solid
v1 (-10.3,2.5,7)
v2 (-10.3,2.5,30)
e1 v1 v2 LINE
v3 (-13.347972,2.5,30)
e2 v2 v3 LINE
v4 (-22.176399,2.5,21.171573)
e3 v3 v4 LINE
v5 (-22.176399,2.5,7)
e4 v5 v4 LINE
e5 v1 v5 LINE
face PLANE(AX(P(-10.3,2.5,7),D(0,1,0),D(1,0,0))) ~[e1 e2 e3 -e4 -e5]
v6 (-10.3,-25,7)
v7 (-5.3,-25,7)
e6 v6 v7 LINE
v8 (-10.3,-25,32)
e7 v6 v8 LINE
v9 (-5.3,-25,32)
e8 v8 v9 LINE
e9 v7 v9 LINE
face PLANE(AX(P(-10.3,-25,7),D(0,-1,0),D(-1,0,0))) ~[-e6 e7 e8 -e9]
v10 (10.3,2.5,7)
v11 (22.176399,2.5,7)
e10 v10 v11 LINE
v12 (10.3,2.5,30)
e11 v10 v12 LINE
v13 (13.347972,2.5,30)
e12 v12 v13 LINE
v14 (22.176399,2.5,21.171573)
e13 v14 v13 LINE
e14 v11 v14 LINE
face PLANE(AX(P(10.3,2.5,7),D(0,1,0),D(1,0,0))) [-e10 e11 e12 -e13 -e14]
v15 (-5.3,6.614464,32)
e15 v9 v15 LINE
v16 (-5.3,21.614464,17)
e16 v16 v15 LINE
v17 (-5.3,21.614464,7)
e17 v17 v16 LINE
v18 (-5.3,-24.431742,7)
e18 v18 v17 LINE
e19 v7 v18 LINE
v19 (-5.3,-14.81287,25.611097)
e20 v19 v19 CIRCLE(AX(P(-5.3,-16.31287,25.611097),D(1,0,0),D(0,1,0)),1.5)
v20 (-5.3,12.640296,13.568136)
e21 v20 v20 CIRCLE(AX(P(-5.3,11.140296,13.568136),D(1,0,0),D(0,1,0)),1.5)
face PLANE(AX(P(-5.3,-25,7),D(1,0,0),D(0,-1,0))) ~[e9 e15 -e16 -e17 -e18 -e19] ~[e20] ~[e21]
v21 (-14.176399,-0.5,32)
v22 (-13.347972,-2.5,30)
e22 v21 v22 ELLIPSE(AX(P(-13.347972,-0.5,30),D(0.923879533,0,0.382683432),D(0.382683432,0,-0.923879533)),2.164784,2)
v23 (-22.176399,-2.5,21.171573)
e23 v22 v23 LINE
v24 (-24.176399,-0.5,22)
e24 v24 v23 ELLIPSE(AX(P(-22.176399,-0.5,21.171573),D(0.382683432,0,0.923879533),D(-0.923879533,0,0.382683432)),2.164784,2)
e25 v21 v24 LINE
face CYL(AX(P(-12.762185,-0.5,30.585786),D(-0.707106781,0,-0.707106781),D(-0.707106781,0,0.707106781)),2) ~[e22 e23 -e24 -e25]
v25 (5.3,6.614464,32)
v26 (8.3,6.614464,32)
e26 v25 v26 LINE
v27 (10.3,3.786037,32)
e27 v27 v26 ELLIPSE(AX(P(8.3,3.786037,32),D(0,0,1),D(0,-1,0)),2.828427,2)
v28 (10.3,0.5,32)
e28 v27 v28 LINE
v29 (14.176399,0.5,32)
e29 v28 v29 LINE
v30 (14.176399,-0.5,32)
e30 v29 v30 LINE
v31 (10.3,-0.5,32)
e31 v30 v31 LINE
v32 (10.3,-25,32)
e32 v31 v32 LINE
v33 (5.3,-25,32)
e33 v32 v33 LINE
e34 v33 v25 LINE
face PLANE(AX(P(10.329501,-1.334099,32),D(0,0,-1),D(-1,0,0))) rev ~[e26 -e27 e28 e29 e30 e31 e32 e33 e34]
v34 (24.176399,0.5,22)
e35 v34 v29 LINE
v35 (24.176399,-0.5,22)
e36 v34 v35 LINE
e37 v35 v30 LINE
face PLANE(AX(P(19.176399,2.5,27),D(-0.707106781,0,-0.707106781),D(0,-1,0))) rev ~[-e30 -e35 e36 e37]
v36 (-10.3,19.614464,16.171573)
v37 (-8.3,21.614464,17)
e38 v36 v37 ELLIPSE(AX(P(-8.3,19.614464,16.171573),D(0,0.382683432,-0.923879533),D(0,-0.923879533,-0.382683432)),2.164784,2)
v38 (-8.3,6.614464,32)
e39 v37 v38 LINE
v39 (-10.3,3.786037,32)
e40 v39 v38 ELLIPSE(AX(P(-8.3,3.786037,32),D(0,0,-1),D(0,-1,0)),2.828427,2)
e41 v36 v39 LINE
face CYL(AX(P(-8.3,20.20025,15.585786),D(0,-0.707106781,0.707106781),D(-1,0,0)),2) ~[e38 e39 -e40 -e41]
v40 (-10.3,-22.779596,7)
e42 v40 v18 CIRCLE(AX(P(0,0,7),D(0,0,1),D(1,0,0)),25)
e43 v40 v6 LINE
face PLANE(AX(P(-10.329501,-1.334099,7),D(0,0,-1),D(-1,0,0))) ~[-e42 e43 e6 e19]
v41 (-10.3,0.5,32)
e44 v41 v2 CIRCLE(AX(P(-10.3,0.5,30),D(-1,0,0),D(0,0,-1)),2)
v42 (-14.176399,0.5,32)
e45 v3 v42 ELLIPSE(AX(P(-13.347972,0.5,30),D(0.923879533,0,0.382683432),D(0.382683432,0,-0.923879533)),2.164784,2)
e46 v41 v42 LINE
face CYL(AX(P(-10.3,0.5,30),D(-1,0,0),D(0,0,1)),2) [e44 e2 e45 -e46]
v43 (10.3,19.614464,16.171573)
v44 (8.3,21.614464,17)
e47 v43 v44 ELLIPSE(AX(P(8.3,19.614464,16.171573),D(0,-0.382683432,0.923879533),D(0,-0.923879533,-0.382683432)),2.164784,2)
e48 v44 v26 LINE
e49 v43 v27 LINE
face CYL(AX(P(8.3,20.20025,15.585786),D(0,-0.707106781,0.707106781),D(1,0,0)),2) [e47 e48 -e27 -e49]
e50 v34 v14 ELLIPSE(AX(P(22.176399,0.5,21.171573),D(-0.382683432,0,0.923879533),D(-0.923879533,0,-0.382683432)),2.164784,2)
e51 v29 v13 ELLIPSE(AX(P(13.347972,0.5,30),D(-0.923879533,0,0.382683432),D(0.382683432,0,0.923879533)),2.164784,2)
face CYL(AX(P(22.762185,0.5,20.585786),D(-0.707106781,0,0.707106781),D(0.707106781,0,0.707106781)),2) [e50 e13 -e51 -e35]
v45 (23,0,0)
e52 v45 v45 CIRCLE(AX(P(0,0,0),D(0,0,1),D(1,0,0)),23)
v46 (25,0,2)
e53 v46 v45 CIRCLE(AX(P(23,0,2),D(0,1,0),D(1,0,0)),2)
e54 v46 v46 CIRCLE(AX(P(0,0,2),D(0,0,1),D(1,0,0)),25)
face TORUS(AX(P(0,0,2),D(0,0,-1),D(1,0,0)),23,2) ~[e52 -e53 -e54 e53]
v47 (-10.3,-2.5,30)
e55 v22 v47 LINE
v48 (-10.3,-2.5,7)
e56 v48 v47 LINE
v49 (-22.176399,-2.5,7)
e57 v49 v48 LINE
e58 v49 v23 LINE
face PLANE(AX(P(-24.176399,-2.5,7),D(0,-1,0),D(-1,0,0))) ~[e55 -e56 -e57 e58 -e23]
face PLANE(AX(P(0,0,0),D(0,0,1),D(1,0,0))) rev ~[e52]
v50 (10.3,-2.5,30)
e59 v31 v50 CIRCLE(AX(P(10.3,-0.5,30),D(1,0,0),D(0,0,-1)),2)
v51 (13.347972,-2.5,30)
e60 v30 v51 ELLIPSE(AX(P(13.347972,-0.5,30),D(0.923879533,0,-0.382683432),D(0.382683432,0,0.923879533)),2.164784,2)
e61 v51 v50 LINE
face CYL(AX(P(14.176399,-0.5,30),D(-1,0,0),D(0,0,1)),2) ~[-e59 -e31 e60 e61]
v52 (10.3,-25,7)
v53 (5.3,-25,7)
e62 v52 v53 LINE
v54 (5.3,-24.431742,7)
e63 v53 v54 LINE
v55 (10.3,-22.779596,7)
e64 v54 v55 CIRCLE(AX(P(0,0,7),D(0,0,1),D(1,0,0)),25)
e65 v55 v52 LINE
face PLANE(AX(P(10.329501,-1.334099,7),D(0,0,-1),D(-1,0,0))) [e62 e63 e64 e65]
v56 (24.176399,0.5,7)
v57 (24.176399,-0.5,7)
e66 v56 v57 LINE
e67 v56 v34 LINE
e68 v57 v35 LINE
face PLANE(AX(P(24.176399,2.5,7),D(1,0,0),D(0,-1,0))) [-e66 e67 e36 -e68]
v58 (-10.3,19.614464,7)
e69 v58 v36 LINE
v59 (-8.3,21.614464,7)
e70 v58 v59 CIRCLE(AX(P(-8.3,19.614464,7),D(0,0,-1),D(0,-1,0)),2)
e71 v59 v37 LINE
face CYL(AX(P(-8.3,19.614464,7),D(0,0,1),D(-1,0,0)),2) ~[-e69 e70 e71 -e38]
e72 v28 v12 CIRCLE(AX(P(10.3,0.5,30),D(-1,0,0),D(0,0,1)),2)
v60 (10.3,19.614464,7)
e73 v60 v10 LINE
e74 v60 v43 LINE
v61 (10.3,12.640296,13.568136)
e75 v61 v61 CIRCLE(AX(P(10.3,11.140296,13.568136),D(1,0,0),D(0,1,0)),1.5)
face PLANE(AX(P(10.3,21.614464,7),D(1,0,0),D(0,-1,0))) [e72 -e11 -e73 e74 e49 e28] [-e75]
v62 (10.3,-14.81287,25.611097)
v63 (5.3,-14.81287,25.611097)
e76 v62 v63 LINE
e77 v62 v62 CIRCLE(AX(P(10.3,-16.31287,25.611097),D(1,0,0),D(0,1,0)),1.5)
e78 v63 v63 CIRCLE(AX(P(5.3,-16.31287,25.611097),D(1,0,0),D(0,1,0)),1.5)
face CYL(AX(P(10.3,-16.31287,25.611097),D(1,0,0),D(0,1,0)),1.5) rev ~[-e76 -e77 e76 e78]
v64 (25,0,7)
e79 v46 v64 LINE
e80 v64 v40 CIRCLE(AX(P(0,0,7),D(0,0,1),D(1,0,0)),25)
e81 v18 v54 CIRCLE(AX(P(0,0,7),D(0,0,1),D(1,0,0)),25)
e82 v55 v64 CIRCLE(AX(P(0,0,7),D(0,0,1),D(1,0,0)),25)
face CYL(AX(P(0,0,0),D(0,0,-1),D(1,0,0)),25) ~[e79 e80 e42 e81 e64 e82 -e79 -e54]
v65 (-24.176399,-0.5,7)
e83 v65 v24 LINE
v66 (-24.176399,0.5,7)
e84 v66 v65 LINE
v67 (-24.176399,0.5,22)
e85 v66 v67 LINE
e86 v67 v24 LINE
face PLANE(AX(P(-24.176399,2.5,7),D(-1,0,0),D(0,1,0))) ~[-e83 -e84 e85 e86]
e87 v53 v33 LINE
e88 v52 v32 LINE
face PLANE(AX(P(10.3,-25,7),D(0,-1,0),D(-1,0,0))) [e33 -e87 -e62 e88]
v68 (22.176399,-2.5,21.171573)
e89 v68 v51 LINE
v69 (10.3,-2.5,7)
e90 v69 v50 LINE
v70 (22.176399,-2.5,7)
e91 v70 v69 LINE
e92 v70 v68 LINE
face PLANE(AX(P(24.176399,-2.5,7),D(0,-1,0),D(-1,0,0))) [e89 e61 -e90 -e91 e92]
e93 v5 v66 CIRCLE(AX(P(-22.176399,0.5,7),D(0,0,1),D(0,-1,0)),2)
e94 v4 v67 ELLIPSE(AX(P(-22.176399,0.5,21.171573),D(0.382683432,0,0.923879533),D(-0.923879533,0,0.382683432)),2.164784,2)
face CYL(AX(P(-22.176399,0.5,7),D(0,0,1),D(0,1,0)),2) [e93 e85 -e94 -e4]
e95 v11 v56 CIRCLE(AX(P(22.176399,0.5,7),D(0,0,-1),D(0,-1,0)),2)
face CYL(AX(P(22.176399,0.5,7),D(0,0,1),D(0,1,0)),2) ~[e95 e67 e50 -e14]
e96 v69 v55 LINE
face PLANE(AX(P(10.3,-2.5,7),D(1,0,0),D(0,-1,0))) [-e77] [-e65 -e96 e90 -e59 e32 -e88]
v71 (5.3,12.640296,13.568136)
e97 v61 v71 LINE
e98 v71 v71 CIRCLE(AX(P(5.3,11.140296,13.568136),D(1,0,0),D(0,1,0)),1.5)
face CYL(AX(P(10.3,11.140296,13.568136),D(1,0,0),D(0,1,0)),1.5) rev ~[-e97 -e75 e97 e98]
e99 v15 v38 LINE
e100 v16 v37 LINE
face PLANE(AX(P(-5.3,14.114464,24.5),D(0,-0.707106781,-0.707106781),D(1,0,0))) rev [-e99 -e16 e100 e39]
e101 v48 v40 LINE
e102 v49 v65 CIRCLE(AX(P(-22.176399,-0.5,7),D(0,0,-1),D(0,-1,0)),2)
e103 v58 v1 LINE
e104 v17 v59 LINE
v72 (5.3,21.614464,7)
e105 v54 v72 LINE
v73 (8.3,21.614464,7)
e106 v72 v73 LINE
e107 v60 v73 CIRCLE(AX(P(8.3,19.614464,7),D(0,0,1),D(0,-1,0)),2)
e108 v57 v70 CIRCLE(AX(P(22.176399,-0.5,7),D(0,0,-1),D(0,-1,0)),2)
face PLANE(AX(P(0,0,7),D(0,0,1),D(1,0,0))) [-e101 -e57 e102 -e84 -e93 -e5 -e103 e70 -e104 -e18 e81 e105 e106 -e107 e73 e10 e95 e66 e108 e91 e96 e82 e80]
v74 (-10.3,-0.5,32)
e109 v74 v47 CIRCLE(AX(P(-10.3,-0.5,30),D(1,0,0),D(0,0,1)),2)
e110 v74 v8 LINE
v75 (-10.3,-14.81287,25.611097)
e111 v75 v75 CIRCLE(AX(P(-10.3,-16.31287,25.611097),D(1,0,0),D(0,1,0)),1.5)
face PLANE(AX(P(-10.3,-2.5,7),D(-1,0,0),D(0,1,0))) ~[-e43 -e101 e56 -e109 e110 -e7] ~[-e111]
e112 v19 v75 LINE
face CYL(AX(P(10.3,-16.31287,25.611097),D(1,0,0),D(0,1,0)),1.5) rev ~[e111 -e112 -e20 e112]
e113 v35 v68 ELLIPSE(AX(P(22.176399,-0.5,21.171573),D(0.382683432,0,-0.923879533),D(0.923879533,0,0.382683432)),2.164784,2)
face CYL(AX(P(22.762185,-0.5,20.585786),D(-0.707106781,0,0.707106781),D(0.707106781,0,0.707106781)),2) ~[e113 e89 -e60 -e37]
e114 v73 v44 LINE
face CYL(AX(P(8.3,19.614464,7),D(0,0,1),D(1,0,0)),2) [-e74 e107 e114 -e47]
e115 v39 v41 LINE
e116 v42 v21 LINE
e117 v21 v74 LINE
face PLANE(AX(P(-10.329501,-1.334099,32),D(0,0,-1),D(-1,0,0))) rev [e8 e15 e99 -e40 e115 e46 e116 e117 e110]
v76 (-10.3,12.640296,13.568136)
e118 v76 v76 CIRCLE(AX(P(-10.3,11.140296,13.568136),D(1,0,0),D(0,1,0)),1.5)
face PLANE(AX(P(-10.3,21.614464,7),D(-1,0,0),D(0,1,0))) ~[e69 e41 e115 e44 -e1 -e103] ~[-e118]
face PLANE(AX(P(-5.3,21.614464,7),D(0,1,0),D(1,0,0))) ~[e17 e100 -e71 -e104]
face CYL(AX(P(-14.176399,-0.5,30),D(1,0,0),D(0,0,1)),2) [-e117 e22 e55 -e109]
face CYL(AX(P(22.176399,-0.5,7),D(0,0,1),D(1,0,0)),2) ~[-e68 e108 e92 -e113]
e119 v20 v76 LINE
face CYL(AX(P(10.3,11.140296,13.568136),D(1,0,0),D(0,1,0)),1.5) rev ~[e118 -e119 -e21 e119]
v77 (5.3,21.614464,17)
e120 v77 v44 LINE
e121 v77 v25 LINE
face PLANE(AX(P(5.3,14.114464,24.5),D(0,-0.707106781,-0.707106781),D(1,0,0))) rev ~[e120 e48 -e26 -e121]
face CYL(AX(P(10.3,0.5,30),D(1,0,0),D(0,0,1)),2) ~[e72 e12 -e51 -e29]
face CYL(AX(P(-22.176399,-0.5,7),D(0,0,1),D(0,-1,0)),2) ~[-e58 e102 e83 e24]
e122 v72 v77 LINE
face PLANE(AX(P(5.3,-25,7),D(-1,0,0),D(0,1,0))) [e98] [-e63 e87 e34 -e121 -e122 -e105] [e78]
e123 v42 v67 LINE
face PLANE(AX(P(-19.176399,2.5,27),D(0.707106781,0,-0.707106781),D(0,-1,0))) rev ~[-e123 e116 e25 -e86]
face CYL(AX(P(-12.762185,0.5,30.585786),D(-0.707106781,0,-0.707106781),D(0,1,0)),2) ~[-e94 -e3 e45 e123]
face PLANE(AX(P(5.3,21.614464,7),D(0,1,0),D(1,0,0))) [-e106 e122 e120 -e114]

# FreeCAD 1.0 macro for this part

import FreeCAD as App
import Part
import Sketcher
from FreeCAD import Vector


def edges_at(feature, points):
    """Names of the edges that pass closest to the given points."""
    edges = feature.Shape.Edges
    near = lambda p: min(range(len(edges)), key=lambda i: edges[i].distToShape(Part.Vertex(*p))[0])
    return sorted({f"Edge{near(p) + 1}" for p in points})


def add_polygon(sketch, points):
    """Adds a closed chain of lines whose ends are joined by coincident constraints."""
    first, n = sketch.GeometryCount, len(points)
    for a, b in zip(points, points[1:] + points[:1]):
        sketch.addGeometry(Part.LineSegment(App.Vector(*a, 0), App.Vector(*b, 0)), False)
    for i in range(n):
        sketch.addConstraint(Sketcher.Constraint("Coincident", first + i, 2, first + (i + 1) % n, 1))

doc = App.newDocument("Part")
body = doc.addObject("PartDesign::Body", "Body")

# Sketch on XY plane
sketch1 = body.newObject("Sketcher::SketchObject", "Sketch")
sketch1.AttachmentSupport = (doc.getObject("XY_Plane"), [""])
sketch1.MapMode = "FlatFace"
sketch1.addGeometry(Part.Circle(Vector(0, 0, 0), Vector(0, 0, 1), 25), False)
sketch1.addConstraint([
    Sketcher.Constraint("Coincident", 0, 3, -1, 1),
    Sketcher.Constraint("Diameter", 0, 50.0),
])
pad1 = body.newObject("PartDesign::Pad", "Pad")
pad1.Profile = sketch1
pad1.Length = 7

# Sketch on XY plane
sketch2 = body.newObject("Sketcher::SketchObject", "Sketch001")
sketch2.AttachmentSupport = (doc.getObject("XY_Plane"), [""])
sketch2.MapMode = "FlatFace"
sketch2.AttachmentOffset = App.Placement(Vector(0, 0, 7), App.Rotation())
add_polygon(sketch2, [(10, 22), (5, 22), (5, -25), (10, -25), (10, -2), (24, -2), (24, 2), (10, 2)])  # lines 0-7
sketch2.addConstraint([
    Sketcher.Constraint("Horizontal", 0),
    Sketcher.Constraint("Vertical", 1),
    Sketcher.Constraint("Horizontal", 2),
    Sketcher.Constraint("Vertical", 3),
    Sketcher.Constraint("Horizontal", 4),
    Sketcher.Constraint("Vertical", 5),
    Sketcher.Constraint("Horizontal", 6),
    Sketcher.Constraint("Vertical", 7),
    Sketcher.Constraint("Symmetric", 3, 2, 6, 2, -1),
    Sketcher.Constraint("Equal", 2, 5),
    Sketcher.Constraint("DistanceX", 0, 2, 0, 1, 5.0),
    Sketcher.Constraint("DistanceY", 3, 1, 3, 2, 22.5),
    Sketcher.Constraint("DistanceX", -1, 1, 0, 2, 5.3),
    Sketcher.Constraint("DistanceX", 4, 1, 4, 2, 13.876399),
    Sketcher.Constraint("DistanceY", 1, 2, 1, 1, 46.614464),
])
pad2 = body.newObject("PartDesign::Pad", "Pad001")
pad2.Profile = sketch2
pad2.Length = 25
doc.recompute()

mirrored = body.newObject("PartDesign::Mirrored", "Mirrored")
mirrored.Originals = [pad2]
mirrored.MirrorPlane = (doc.getObject("YZ_Plane"), [""])
body.Tip = mirrored
doc.recompute()

chamfer = body.newObject("PartDesign::Chamfer", "Chamfer")
chamfer.Base = (mirrored, edges_at(mirrored, [(7.8, 21.614, 32), (-7.8, 21.614, 32)]))
chamfer.Size = 15
doc.recompute()

chamfer2 = body.newObject("PartDesign::Chamfer", "Chamfer001")
chamfer2.Base = (chamfer, edges_at(chamfer, [(24.176, 0, 32), (-24.176, 0, 32)]))
chamfer2.Size = 10
doc.recompute()

fillet = body.newObject("PartDesign::Fillet", "Fillet")
fillet.Base = (chamfer2, edges_at(chamfer2, [
    (10.3, 14.114, 24.5),
    (10.3, 21.614, 12),
    (-10.3, 14.114, 24.5),
    (-10.3, 21.614, 12),
]))
fillet.Radius = 2
doc.recompute()

fillet2 = body.newObject("PartDesign::Fillet", "Fillet001")
fillet2.Base = (fillet, edges_at(fillet, [
    (-19.176, 2.5, 27),
    (-24.176, 2.5, 14.5),
    (-19.176, -2.5, 27),
    (-24.176, -2.5, 14.5),
    (-12.238, 2.5, 32),
    (-12.238, -2.5, 32),
]))
fillet2.Radius = 2
doc.recompute()

fillet3 = body.newObject("PartDesign::Fillet", "Fillet002")
fillet3.Base = (fillet2, edges_at(fillet2, [
    (12.238, 2.5, 32),
    (19.176, 2.5, 27),
    (24.176, 2.5, 14.5),
    (24.176, -2.5, 14.5),
    (19.176, -2.5, 27),
    (12.238, -2.5, 32),
]))
fillet3.Radius = 2

# Sketch on YZ plane
sketch3 = body.newObject("Sketcher::SketchObject", "Sketch002")
sketch3.AttachmentSupport = (doc.getObject("YZ_Plane"), [""])
sketch3.MapMode = "FlatFace"
sketch3.AttachmentOffset = App.Placement(Vector(0, 0, 10.3), App.Rotation())
sketch3.addGeometry([
    Part.Circle(Vector(11.1, 13.6, 0), Vector(0, 0, 1), 1.5),
    Part.Circle(Vector(-16.3, 25.6, 0), Vector(0, 0, 1), 1.5),
], False)
sketch3.addConstraint([
    Sketcher.Constraint("Equal", 0, 1),
    Sketcher.Constraint("Diameter", 0, 3.0),
    Sketcher.Constraint("DistanceX", 1, 3, -1, 1, 16.31287),
    Sketcher.Constraint("DistanceY", 0, 3, 1, 3, 12.042961),
    Sketcher.Constraint("DistanceX", -1, 1, 0, 3, 11.140296),
    Sketcher.Constraint("DistanceY", -1, 1, 0, 3, 13.568136),
])
pocket1 = body.newObject("PartDesign::Pocket", "Pocket")
pocket1.Profile = sketch3
pocket1.Type = "ThroughAll"
doc.recompute()

fillet4 = body.newObject("PartDesign::Fillet", "Fillet003")
fillet4.Base = (pocket1, edges_at(pocket1, [(-25, 0, 0)]))
fillet4.Radius = 2

doc.recompute()
